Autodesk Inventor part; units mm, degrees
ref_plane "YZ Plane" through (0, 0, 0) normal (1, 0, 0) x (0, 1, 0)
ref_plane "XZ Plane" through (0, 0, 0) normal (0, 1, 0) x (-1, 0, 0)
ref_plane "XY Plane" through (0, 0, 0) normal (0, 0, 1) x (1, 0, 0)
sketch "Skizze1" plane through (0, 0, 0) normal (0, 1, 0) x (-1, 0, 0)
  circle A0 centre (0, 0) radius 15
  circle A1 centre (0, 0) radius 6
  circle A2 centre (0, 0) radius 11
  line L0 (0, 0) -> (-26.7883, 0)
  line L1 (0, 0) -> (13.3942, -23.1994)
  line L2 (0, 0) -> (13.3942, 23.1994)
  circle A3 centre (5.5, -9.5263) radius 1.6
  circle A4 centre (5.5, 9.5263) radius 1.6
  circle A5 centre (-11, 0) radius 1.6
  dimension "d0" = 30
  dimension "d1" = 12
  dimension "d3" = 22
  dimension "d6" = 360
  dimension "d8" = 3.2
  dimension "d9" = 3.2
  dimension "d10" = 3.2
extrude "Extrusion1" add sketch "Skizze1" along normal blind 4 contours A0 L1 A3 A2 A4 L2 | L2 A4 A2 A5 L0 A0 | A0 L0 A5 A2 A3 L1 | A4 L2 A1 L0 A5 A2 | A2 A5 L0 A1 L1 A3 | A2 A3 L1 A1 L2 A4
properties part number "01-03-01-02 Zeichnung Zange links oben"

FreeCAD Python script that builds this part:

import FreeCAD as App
import Part
import Sketcher

V = App.Vector

doc = App.newDocument("Part")
params = doc.addObject("Spreadsheet::Sheet", "Params")
for row, (alias, value) in enumerate([
    ("sketch1_diameter", "30 mm"),
    ("sketch1_diameter2", "12 mm"),
    ("sketch1_diameter3", "3.2 mm"),
    ("pad1_length", "4 mm"),
], start=1):
    params.set(f"A{row}", alias)
    params.set(f"B{row}", "=" + value)
    params.setAlias(f"B{row}", alias)

body = doc.addObject("PartDesign::Body", "Body")

# Sketch on XZ plane
sketch1 = body.newObject("Sketcher::SketchObject", "Sketch")
sketch1.AttachmentSupport = (doc.getObject("XZ_Plane"), [""])
sketch1.MapMode = "FlatFace"
sketch1.addGeometry(Part.Circle(V(0, 0, 0), V(0, 0, 1), 15), False)
sketch1.addGeometry(Part.Circle(V(-5.5, -9.5, 0), V(0, 0, 1), 1.6), False)
sketch1.addGeometry(Part.Circle(V(-5.5, 9.5, 0), V(0, 0, 1), 1.6), False)
sketch1.addGeometry(Part.Circle(V(11, 0, 0), V(0, 0, 1), 1.6), False)
sketch1.addGeometry(Part.Circle(V(0, 0, 0), V(0, 0, 1), 6), False)
sketch1.addConstraint(Sketcher.Constraint("Coincident", 0, 3, -1, 1))
sketch1.addConstraint(Sketcher.Constraint("Coincident", 4, 3, -1, 1))
sketch1.addConstraint(Sketcher.Constraint("Equal", 1, 2))
sketch1.addConstraint(Sketcher.Constraint("Equal", 2, 3))
sketch1.addConstraint(Sketcher.Constraint("Symmetric", 1, 3, 2, 3, -1))
sketch1.addConstraint(Sketcher.Constraint("PointOnObject", 3, 3, -1))
sketch1.addConstraint(Sketcher.Constraint("Diameter", 0, 30.0))
sketch1.addConstraint(Sketcher.Constraint("Diameter", 4, 12.0))
sketch1.addConstraint(Sketcher.Constraint("Diameter", 1, 3.2))
sketch1.addConstraint(Sketcher.Constraint("DistanceX", -1, 1, 3, 3, 11.0))
sketch1.addConstraint(Sketcher.Constraint("DistanceX", 1, 3, -1, 1, 5.5))
sketch1.addConstraint(Sketcher.Constraint("DistanceY", 1, 3, -1, 1, 9.5263))
sketch1.setExpression("Constraints[6]", "Params.sketch1_diameter")
sketch1.setExpression("Constraints[7]", "Params.sketch1_diameter2")
sketch1.setExpression("Constraints[8]", "Params.sketch1_diameter3")
pad1 = body.newObject("PartDesign::Pad", "Pad")
pad1.Profile = sketch1
pad1.setExpression("Length", "Params.pad1_length")
pad1.Reversed = True

doc.recompute()
